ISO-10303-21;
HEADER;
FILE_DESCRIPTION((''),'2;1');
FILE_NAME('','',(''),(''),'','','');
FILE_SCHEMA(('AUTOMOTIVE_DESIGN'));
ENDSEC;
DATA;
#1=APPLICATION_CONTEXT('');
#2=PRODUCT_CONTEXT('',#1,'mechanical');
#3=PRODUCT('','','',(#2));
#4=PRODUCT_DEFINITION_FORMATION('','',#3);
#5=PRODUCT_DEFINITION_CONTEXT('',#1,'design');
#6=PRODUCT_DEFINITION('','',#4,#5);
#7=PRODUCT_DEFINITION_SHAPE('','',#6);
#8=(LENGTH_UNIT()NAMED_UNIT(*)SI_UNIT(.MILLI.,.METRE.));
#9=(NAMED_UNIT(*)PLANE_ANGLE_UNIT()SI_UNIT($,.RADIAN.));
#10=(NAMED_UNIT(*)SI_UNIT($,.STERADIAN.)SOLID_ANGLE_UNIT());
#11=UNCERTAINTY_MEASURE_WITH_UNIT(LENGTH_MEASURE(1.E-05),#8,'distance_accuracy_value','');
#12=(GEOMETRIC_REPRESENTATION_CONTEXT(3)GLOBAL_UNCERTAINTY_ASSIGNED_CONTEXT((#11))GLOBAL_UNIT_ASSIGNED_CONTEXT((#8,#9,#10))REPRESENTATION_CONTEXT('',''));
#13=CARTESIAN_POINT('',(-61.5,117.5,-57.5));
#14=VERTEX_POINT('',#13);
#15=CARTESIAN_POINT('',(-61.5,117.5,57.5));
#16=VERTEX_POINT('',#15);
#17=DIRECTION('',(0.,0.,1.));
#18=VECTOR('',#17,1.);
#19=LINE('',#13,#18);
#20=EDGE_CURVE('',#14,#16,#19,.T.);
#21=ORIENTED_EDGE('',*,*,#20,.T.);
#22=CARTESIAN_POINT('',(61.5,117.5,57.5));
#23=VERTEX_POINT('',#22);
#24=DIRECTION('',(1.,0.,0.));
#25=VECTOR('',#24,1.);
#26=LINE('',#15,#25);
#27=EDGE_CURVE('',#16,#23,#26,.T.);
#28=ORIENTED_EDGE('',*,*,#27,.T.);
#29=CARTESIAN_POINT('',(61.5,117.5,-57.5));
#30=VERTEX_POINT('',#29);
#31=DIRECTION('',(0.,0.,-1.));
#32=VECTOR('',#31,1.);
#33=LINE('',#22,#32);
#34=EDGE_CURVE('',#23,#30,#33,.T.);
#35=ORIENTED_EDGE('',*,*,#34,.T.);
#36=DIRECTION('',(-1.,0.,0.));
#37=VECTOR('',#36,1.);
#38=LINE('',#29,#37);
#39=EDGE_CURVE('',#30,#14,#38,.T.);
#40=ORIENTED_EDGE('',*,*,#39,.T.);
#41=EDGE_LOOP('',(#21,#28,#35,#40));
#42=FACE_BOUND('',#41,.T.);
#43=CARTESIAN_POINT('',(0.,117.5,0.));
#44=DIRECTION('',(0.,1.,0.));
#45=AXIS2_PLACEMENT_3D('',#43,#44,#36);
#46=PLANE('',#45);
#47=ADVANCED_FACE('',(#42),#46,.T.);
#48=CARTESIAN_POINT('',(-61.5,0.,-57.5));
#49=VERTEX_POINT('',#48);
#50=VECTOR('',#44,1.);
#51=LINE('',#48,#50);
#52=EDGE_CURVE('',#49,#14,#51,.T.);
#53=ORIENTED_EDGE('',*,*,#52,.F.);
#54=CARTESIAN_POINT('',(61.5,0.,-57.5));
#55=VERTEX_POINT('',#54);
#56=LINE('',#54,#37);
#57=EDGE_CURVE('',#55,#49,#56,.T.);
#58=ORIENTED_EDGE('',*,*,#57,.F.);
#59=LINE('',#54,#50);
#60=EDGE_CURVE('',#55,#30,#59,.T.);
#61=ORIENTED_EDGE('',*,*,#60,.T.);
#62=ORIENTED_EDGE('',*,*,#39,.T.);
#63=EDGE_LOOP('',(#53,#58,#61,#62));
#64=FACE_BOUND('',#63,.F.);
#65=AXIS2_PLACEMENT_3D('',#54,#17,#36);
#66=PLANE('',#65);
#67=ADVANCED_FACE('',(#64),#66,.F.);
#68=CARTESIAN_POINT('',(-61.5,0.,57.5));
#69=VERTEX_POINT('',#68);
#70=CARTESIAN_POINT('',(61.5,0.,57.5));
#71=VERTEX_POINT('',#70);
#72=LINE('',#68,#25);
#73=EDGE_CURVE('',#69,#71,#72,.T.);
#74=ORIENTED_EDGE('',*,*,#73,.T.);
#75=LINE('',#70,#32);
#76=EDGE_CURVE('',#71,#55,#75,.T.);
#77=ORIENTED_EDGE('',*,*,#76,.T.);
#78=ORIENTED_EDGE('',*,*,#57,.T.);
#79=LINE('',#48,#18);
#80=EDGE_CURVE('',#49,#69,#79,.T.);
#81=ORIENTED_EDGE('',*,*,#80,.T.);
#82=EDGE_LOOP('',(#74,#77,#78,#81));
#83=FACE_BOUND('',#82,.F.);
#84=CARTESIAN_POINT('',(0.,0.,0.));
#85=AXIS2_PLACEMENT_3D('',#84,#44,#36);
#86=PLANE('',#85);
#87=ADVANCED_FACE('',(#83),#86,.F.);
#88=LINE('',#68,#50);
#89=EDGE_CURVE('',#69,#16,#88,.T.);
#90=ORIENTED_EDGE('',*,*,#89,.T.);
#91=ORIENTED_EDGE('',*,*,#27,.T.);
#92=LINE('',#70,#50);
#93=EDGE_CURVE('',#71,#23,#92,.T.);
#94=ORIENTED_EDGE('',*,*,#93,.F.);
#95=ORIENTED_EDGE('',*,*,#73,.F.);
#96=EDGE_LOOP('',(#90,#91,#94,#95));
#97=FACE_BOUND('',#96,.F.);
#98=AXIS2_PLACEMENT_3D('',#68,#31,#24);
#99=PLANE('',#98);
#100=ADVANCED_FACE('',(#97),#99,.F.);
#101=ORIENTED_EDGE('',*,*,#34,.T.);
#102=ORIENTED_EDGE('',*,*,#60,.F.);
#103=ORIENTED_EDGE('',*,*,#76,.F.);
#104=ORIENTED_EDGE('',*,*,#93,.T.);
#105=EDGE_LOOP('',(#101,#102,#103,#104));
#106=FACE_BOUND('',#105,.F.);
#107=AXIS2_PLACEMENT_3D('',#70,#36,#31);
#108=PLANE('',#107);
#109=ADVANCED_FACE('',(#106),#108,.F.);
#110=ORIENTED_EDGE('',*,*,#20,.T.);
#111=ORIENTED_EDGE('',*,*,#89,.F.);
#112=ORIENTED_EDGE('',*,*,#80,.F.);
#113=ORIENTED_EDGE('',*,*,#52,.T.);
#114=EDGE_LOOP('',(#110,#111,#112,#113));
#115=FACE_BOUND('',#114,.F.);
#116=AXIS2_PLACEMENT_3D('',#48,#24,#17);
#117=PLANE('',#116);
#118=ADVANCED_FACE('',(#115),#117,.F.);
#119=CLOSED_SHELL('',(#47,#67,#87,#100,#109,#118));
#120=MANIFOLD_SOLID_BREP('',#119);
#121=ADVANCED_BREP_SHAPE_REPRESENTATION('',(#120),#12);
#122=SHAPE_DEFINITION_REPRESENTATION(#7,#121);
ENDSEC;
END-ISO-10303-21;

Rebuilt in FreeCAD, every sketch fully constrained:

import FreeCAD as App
import Part
import Sketcher
from FreeCAD import Vector

doc = App.newDocument("Part")
body = doc.addObject("PartDesign::Body", "Body")

# Sketch on XZ plane
sketch1 = body.newObject("Sketcher::SketchObject", "Sketch")
sketch1.AttachmentSupport = (doc.getObject("XZ_Plane"), [""])
sketch1.MapMode = "FlatFace"
sketch1.addGeometry([
    Part.LineSegment(Vector(-62, -58, 0), Vector(-62, 58, 0)),
    Part.LineSegment(Vector(-62, 58, 0), Vector(62, 58, 0)),
    Part.LineSegment(Vector(62, 58, 0), Vector(62, -58, 0)),
    Part.LineSegment(Vector(62, -58, 0), Vector(-62, -58, 0)),
], False)
sketch1.addConstraint([
    Sketcher.Constraint("Coincident", 0, 2, 1, 1),
    Sketcher.Constraint("Coincident", 1, 2, 2, 1),
    Sketcher.Constraint("Coincident", 2, 2, 3, 1),
    Sketcher.Constraint("Coincident", 3, 2, 0, 1),
    Sketcher.Constraint("Vertical", 0),
    Sketcher.Constraint("Horizontal", 1),
    Sketcher.Constraint("Vertical", 2),
    Sketcher.Constraint("Horizontal", 3),
    Sketcher.Constraint("Symmetric", 0, 2, 2, 2, -1, 1),
    Sketcher.Constraint("DistanceX", 1, 1, 1, 2, 123.0),
    Sketcher.Constraint("DistanceY", 0, 1, 0, 2, 115.0),
])
pad1 = body.newObject("PartDesign::Pad", "Pad")
pad1.Profile = sketch1
pad1.Length = 117.5
pad1.Reversed = True

doc.recompute()
